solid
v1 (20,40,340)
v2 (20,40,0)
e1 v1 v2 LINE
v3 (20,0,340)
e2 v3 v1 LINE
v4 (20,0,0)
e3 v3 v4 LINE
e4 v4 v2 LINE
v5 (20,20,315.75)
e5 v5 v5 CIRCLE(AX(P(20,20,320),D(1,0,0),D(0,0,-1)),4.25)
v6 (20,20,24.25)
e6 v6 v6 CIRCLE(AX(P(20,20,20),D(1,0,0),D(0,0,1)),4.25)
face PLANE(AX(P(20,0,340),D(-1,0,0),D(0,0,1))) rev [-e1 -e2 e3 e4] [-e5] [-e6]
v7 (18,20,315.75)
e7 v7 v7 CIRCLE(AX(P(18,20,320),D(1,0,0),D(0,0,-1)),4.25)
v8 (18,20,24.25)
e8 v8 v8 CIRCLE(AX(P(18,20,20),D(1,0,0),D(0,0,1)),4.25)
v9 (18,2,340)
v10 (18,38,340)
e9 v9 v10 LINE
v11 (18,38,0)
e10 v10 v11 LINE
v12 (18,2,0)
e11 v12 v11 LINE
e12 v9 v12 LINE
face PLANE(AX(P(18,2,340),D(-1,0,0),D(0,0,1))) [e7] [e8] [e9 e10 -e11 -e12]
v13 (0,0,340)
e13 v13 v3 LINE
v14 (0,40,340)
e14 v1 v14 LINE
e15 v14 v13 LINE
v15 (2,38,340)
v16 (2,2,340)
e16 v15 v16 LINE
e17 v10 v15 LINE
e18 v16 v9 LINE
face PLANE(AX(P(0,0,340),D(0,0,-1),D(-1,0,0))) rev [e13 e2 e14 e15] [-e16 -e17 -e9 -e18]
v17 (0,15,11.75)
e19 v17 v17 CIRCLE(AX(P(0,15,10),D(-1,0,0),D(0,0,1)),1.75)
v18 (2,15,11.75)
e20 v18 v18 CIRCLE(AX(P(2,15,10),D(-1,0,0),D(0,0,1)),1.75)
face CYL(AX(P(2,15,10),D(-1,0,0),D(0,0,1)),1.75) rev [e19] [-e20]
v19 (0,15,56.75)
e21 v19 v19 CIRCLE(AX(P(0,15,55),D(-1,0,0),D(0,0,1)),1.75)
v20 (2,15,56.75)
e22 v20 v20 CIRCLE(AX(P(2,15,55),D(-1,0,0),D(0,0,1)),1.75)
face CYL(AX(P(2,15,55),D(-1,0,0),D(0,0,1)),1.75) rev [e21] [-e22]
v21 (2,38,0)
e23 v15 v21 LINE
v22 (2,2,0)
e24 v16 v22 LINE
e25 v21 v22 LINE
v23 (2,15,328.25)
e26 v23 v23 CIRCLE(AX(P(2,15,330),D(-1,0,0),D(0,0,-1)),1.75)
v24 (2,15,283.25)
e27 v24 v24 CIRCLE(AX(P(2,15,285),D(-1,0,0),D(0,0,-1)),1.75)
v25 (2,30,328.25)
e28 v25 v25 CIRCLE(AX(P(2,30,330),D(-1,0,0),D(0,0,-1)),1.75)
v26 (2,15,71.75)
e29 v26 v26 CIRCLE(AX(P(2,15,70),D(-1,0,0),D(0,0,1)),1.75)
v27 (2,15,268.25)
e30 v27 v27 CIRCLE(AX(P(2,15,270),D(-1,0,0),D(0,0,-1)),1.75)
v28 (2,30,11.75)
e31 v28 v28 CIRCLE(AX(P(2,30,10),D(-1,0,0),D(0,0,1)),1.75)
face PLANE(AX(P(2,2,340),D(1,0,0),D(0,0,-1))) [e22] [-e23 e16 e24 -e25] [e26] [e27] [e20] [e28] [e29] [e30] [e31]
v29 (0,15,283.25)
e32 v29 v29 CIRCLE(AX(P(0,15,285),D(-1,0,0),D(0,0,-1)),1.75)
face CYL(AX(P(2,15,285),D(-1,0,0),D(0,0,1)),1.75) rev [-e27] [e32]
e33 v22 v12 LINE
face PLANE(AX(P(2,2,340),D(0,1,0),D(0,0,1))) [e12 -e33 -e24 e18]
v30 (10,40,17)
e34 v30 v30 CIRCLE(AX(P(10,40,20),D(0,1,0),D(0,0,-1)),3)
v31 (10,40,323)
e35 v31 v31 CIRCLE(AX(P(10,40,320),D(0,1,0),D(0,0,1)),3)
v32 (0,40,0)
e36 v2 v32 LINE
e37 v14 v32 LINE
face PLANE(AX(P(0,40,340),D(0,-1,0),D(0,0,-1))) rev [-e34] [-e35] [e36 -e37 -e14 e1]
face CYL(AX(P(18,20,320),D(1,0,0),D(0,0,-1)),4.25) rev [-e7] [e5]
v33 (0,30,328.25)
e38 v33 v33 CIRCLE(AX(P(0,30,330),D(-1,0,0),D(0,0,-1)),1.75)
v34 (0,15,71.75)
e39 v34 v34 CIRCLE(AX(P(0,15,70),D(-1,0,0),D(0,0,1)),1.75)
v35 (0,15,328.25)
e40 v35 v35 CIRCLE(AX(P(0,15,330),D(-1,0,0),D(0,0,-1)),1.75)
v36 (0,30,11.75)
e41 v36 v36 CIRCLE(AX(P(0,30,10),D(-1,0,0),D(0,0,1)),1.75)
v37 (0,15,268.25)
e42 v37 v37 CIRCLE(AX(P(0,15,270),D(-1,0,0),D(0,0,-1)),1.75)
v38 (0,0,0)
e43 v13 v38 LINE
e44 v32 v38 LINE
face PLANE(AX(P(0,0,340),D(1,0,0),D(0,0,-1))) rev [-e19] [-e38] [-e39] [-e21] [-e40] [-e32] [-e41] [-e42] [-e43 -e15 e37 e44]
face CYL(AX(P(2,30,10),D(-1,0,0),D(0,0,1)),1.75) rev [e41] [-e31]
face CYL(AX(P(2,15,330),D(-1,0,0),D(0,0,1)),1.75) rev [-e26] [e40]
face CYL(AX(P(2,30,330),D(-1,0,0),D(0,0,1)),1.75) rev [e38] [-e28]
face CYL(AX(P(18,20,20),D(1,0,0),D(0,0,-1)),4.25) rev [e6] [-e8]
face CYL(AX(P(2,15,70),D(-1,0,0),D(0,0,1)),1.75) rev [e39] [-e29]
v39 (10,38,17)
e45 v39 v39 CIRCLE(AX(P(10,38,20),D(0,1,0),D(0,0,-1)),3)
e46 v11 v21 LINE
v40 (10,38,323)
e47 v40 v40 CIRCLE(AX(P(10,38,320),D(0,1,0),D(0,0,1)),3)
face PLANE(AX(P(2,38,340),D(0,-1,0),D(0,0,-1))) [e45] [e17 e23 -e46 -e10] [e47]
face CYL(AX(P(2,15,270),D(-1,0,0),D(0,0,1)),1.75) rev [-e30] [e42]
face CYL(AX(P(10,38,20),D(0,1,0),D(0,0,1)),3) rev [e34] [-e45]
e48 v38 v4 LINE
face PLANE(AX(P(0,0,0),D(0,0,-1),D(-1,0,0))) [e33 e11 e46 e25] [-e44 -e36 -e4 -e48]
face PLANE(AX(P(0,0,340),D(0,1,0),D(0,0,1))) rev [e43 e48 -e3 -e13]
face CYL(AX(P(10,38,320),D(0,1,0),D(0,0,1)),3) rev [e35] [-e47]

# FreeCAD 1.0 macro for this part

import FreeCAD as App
import Part
import Sketcher
from FreeCAD import Vector

doc = App.newDocument("Part")
body = doc.addObject("PartDesign::Body", "Body")

# Sketch on XY plane
sketch1 = body.newObject("Sketcher::SketchObject", "Sketch")
sketch1.AttachmentSupport = (doc.getObject("XY_Plane"), [""])
sketch1.MapMode = "FlatFace"
sketch1.addGeometry([
    Part.LineSegment(Vector(0, 40, 0), Vector(0, 0, 0)),  # 0
    Part.LineSegment(Vector(0, 0, 0), Vector(20, 0, 0)),  # 1
    Part.LineSegment(Vector(20, 0, 0), Vector(20, 40, 0)),  # 2
    Part.LineSegment(Vector(20, 40, 0), Vector(0, 40, 0)),  # 3
    Part.LineSegment(Vector(18, 2, 0), Vector(2, 2, 0)),  # 4
    Part.LineSegment(Vector(2, 2, 0), Vector(2, 38, 0)),  # 5
    Part.LineSegment(Vector(2, 38, 0), Vector(18, 38, 0)),  # 6
    Part.LineSegment(Vector(18, 38, 0), Vector(18, 2, 0)),  # 7
], False)
sketch1.addConstraint([
    Sketcher.Constraint("Coincident", 0, 2, 1, 1),
    Sketcher.Constraint("Coincident", 1, 2, 2, 1),
    Sketcher.Constraint("Coincident", 2, 2, 3, 1),
    Sketcher.Constraint("Coincident", 3, 2, 0, 1),
    Sketcher.Constraint("Coincident", 4, 2, 5, 1),
    Sketcher.Constraint("Coincident", 5, 2, 6, 1),
    Sketcher.Constraint("Coincident", 6, 2, 7, 1),
    Sketcher.Constraint("Coincident", 7, 2, 4, 1),
    Sketcher.Constraint("Vertical", 0),
    Sketcher.Constraint("Horizontal", 1),
    Sketcher.Constraint("Vertical", 2),
    Sketcher.Constraint("Horizontal", 3),
    Sketcher.Constraint("Horizontal", 4),
    Sketcher.Constraint("Vertical", 5),
    Sketcher.Constraint("Horizontal", 6),
    Sketcher.Constraint("Vertical", 7),
    Sketcher.Constraint("Coincident", 0, 2, -1, 1),
    Sketcher.Constraint("DistanceX", 1, 1, 1, 2, 20.0),
    Sketcher.Constraint("DistanceX", 4, 2, 4, 1, 16.0),
    Sketcher.Constraint("DistanceY", 0, 2, 0, 1, 40.0),
    Sketcher.Constraint("DistanceY", 5, 1, 5, 2, 36.0),
    Sketcher.Constraint("DistanceX", -1, 1, 4, 2, 2.0),
    Sketcher.Constraint("DistanceY", -1, 1, 4, 2, 2.0),
])
pad1 = body.newObject("PartDesign::Pad", "Pad")
pad1.Profile = sketch1
pad1.Length = 340

# Sketch on YZ plane
sketch2 = body.newObject("Sketcher::SketchObject", "Sketch001")
sketch2.AttachmentSupport = (doc.getObject("YZ_Plane"), [""])
sketch2.MapMode = "FlatFace"
sketch2.addGeometry([
    Part.Circle(Vector(30, 10, 0), Vector(0, 0, 1), 1.75),  # 0
    Part.Circle(Vector(15, 10, 0), Vector(0, 0, 1), 1.75),  # 1
    Part.Circle(Vector(15, 70, 0), Vector(0, 0, 1), 1.75),  # 2
    Part.Circle(Vector(15, 55, 0), Vector(0, 0, 1), 1.75),  # 3
    Part.Circle(Vector(15, 270, 0), Vector(0, 0, 1), 1.75),  # 4
    Part.Circle(Vector(15, 285, 0), Vector(0, 0, 1), 1.75),  # 5
    Part.Circle(Vector(15, 330, 0), Vector(0, 0, 1), 1.75),  # 6
    Part.Circle(Vector(30, 330, 0), Vector(0, 0, 1), 1.75),  # 7
], False)
sketch2.addConstraint([
    Sketcher.Constraint("Equal", 0, 1),
    Sketcher.Constraint("Equal", 1, 2),
    Sketcher.Constraint("Equal", 2, 3),
    Sketcher.Constraint("Equal", 3, 4),
    Sketcher.Constraint("Equal", 4, 5),
    Sketcher.Constraint("Equal", 5, 6),
    Sketcher.Constraint("Equal", 6, 7),
    Sketcher.Constraint("Horizontal", 0, 3, 1, 3),
    Sketcher.Constraint("Horizontal", 6, 3, 7, 3),
    Sketcher.Constraint("Vertical", 1, 3, 2, 3),
    Sketcher.Constraint("Vertical", 2, 3, 3, 3),
    Sketcher.Constraint("Vertical", 3, 3, 4, 3),
    Sketcher.Constraint("Vertical", 4, 3, 5, 3),
    Sketcher.Constraint("Vertical", 5, 3, 6, 3),
    Sketcher.Constraint("Vertical", 0, 3, 7, 3),
    Sketcher.Constraint("Diameter", 0, 3.5),
    Sketcher.Constraint("DistanceX", -1, 1, 0, 3, 30.0),
    Sketcher.Constraint("DistanceY", -1, 1, 0, 3, 10.0),
    Sketcher.Constraint("DistanceX", -1, 1, 1, 3, 15.0),
    Sketcher.Constraint("DistanceY", -1, 1, 2, 3, 70.0),
    Sketcher.Constraint("DistanceY", -1, 1, 3, 3, 55.0),
    Sketcher.Constraint("DistanceY", -1, 1, 4, 3, 270.0),
    Sketcher.Constraint("DistanceY", -1, 1, 5, 3, 285.0),
    Sketcher.Constraint("DistanceY", -1, 1, 6, 3, 330.0),
])
pocket1 = body.newObject("PartDesign::Pocket", "Pocket")
pocket1.Profile = sketch2
pocket1.Length = 2
pocket1.Reversed = True

# Sketch on XZ plane
sketch3 = body.newObject("Sketcher::SketchObject", "Sketch002")
sketch3.AttachmentSupport = (doc.getObject("XZ_Plane"), [""])
sketch3.MapMode = "FlatFace"
sketch3.AttachmentOffset = App.Placement(Vector(0, 0, -40), App.Rotation())
sketch3.addGeometry([
    Part.Circle(Vector(10, 320, 0), Vector(0, 0, 1), 3),
    Part.Circle(Vector(10, 20, 0), Vector(0, 0, 1), 3),
], False)
sketch3.addConstraint([
    Sketcher.Constraint("Equal", 0, 1),
    Sketcher.Constraint("Vertical", 0, 3, 1, 3),
    Sketcher.Constraint("Diameter", 0, 6.0),
    Sketcher.Constraint("DistanceX", -1, 1, 0, 3, 10.0),
    Sketcher.Constraint("DistanceY", -1, 1, 0, 3, 320.0),
    Sketcher.Constraint("DistanceY", -1, 1, 1, 3, 20.0),
])
pocket2 = body.newObject("PartDesign::Pocket", "Pocket001")
pocket2.Profile = sketch3
pocket2.Length = 2
pocket2.Reversed = True

# Sketch on YZ plane
sketch4 = body.newObject("Sketcher::SketchObject", "Sketch003")
sketch4.AttachmentSupport = (doc.getObject("YZ_Plane"), [""])
sketch4.MapMode = "FlatFace"
sketch4.AttachmentOffset = App.Placement(Vector(0, 0, 20), App.Rotation())
sketch4.addGeometry([
    Part.Circle(Vector(20, 320, 0), Vector(0, 0, 1), 4.25),
    Part.Circle(Vector(20, 20, 0), Vector(0, 0, 1), 4.25),
], False)
sketch4.addConstraint([
    Sketcher.Constraint("Equal", 0, 1),
    Sketcher.Constraint("Vertical", 0, 3, 1, 3),
    Sketcher.Constraint("Diameter", 0, 8.5),
    Sketcher.Constraint("DistanceX", -1, 1, 0, 3, 20.0),
    Sketcher.Constraint("DistanceY", -1, 1, 0, 3, 320.0),
    Sketcher.Constraint("DistanceY", -1, 1, 1, 3, 20.0),
])
pocket3 = body.newObject("PartDesign::Pocket", "Pocket002")
pocket3.Profile = sketch4
pocket3.Length = 2

doc.recompute()
